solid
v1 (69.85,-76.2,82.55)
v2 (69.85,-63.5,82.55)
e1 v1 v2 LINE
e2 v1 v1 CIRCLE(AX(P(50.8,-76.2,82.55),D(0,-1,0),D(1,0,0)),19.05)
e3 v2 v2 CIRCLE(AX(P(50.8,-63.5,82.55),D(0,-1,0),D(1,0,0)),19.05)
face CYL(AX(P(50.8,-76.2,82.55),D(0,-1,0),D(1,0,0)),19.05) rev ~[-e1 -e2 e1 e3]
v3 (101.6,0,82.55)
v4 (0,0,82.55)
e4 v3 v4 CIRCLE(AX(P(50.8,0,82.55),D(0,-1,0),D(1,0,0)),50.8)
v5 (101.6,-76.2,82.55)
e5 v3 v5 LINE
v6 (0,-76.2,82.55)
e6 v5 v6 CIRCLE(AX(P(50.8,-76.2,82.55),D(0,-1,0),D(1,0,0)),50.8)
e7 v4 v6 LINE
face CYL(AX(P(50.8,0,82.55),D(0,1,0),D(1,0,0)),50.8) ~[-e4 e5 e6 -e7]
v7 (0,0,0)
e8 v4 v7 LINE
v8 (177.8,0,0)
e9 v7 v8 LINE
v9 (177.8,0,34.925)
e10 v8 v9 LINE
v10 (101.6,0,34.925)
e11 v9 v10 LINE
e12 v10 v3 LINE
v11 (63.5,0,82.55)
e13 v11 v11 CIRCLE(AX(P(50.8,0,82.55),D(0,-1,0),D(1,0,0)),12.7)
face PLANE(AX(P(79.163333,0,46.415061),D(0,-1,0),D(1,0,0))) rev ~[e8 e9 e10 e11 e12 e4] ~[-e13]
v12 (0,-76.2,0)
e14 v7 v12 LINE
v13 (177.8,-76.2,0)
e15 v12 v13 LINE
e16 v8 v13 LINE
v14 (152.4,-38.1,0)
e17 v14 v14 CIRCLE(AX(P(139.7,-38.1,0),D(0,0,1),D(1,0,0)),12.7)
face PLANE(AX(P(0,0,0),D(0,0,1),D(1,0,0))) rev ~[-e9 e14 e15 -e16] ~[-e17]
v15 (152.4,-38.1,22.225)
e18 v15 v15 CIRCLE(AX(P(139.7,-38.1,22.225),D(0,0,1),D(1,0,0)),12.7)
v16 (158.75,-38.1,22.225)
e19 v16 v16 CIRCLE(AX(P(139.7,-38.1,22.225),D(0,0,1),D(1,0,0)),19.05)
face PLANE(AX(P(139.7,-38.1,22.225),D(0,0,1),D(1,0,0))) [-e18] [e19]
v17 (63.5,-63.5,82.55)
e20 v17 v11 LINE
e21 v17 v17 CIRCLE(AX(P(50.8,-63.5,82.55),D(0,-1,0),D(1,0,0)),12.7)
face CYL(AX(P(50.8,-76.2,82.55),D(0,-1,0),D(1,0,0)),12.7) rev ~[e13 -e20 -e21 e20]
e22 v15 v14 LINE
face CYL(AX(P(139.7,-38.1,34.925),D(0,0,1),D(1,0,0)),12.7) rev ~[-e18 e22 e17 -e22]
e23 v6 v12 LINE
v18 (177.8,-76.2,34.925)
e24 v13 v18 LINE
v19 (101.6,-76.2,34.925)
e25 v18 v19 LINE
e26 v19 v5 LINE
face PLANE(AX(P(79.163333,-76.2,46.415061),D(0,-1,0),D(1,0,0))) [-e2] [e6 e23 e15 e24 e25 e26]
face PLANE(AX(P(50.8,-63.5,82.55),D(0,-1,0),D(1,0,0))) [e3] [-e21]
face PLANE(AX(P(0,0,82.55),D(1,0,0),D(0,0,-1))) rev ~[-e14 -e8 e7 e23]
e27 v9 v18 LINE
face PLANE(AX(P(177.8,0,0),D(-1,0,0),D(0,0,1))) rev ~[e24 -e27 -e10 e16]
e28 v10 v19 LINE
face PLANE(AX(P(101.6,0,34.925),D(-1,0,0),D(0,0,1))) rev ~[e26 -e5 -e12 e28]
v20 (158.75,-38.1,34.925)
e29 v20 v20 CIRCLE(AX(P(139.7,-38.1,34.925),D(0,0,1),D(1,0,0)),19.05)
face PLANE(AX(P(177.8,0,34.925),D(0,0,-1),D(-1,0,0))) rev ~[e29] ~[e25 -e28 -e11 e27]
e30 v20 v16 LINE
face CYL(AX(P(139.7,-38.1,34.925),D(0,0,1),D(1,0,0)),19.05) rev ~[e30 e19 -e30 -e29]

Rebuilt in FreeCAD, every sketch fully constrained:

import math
import FreeCAD as App
import Part
import Sketcher

V = App.Vector
Q = App.Units.Quantity

doc = App.newDocument("Part")
body = doc.addObject("PartDesign::Body", "Body")

# Sketch on XZ plane
sketch1 = doc.addObject("Sketcher::SketchObject", "Sketch")
body.addObject(sketch1)
sketch1.AttachmentSupport = (doc.XZ_Plane, [""])
sketch1.MapMode = "FlatFace"
sketch1.addGeometry(Part.LineSegment(V(0, 82.55, 0), V(0, 0, 0)), False)
sketch1.addGeometry(Part.LineSegment(V(0, 0, 0), V(177.8, 0, 0)), False)
sketch1.addGeometry(Part.LineSegment(V(177.8, 0, 0), V(177.8, 34.925, 0)), False)
sketch1.addGeometry(Part.LineSegment(V(177.8, 34.925, 0), V(101.6, 34.925, 0)), False)
sketch1.addGeometry(Part.LineSegment(V(101.6, 34.925, 0), V(101.6, 82.55, 0)), False)
sketch1.addGeometry(Part.ArcOfCircle(Part.Circle(V(50.8, 82.55, 0), V(0, 0, 1), 50.8), math.radians(0), math.radians(180)), False)
sketch1.addConstraint(Sketcher.Constraint("Coincident", 0, 2, 1, 1))
sketch1.addConstraint(Sketcher.Constraint("Coincident", 1, 2, 2, 1))
sketch1.addConstraint(Sketcher.Constraint("Coincident", 2, 2, 3, 1))
sketch1.addConstraint(Sketcher.Constraint("Coincident", 3, 2, 4, 1))
sketch1.addConstraint(Sketcher.Constraint("Tangent", 4, 2, 5, 1))
sketch1.addConstraint(Sketcher.Constraint("Tangent", 5, 2, 0, 1))
sketch1.addConstraint(Sketcher.Constraint("Vertical", 0))
sketch1.addConstraint(Sketcher.Constraint("Horizontal", 1))
sketch1.addConstraint(Sketcher.Constraint("Vertical", 2))
sketch1.addConstraint(Sketcher.Constraint("Horizontal", 3))
sketch1.addConstraint(Sketcher.Constraint("Vertical", 4))
sketch1.addConstraint(Sketcher.Constraint("Coincident", 0, 2, -1, 1))
sketch1.addConstraint(Sketcher.Constraint("Radius", 5, Q("2 in")))
sketch1.addConstraint(Sketcher.Constraint("DistanceX", 1, 1, 1, 2, Q("7 in")))
sketch1.addConstraint(Sketcher.Constraint("DistanceY", 0, 2, 0, 1, Q("3.25 in")))
sketch1.addConstraint(Sketcher.Constraint("DistanceY", 2, 1, 2, 2, Q("1.375 in")))
pad1 = doc.addObject("PartDesign::Pad", "Pad")
body.addObject(pad1)
pad1.Profile = sketch1
pad1.Length = Q("3 in")

# Sketch on XZ plane
sketch2 = doc.addObject("Sketcher::SketchObject", "Sketch001")
body.addObject(sketch2)
sketch2.AttachmentSupport = (doc.XZ_Plane, [""])
sketch2.MapMode = "FlatFace"
sketch2.AttachmentOffset = App.Placement(V(0, 0, 3 * 25.4), App.Rotation())
sketch2.addGeometry(Part.Circle(V(50.8, 82.55, 0), V(0, 0, 1), 19.05), False)
sketch2.addConstraint(Sketcher.Constraint("Diameter", 0, Q("1.5 in")))
sketch2.addConstraint(Sketcher.Constraint("DistanceX", -1, 1, 0, 3, Q("2 in")))
sketch2.addConstraint(Sketcher.Constraint("DistanceY", -1, 1, 0, 3, Q("3.25 in")))
pocket1 = doc.addObject("PartDesign::Pocket", "Pocket")
body.addObject(pocket1)
pocket1.Profile = sketch2
pocket1.Length = Q("0.5 in")

# Sketch on XZ plane
sketch3 = doc.addObject("Sketcher::SketchObject", "Sketch002")
body.addObject(sketch3)
sketch3.AttachmentSupport = (doc.XZ_Plane, [""])
sketch3.MapMode = "FlatFace"
sketch3.AttachmentOffset = App.Placement(V(0, 0, 3 * 25.4), App.Rotation())
sketch3.addGeometry(Part.Circle(V(50.8, 82.55, 0), V(0, 0, 1), 12.7), False)
sketch3.addConstraint(Sketcher.Constraint("Diameter", 0, Q("1 in")))
sketch3.addConstraint(Sketcher.Constraint("DistanceX", -1, 1, 0, 3, Q("2 in")))
sketch3.addConstraint(Sketcher.Constraint("DistanceY", -1, 1, 0, 3, Q("3.25 in")))
pocket2 = doc.addObject("PartDesign::Pocket", "Pocket001")
body.addObject(pocket2)
pocket2.Profile = sketch3
pocket2.Type = "ThroughAll"

# Sketch on XY plane
sketch4 = doc.addObject("Sketcher::SketchObject", "Sketch003")
body.addObject(sketch4)
sketch4.AttachmentSupport = (doc.XY_Plane, [""])
sketch4.MapMode = "FlatFace"
sketch4.AttachmentOffset = App.Placement(V(0, 0, 1.375 * 25.4), App.Rotation())
sketch4.addGeometry(Part.Circle(V(139.7, -38.1, 0), V(0, 0, 1), 19.05), False)
sketch4.addConstraint(Sketcher.Constraint("Diameter", 0, Q("1.5 in")))
sketch4.addConstraint(Sketcher.Constraint("DistanceX", -1, 1, 0, 3, Q("5.5 in")))
sketch4.addConstraint(Sketcher.Constraint("DistanceY", 0, 3, -1, 1, Q("1.5 in")))
pocket3 = doc.addObject("PartDesign::Pocket", "Pocket002")
body.addObject(pocket3)
pocket3.Profile = sketch4
pocket3.Length = Q("0.5 in")

# Sketch on XY plane
sketch5 = doc.addObject("Sketcher::SketchObject", "Sketch004")
body.addObject(sketch5)
sketch5.AttachmentSupport = (doc.XY_Plane, [""])
sketch5.MapMode = "FlatFace"
sketch5.AttachmentOffset = App.Placement(V(0, 0, 1.375 * 25.4), App.Rotation())
sketch5.addGeometry(Part.Circle(V(139.7, -38.1, 0), V(0, 0, 1), 12.7), False)
sketch5.addConstraint(Sketcher.Constraint("Diameter", 0, Q("1 in")))
sketch5.addConstraint(Sketcher.Constraint("DistanceX", -1, 1, 0, 3, Q("5.5 in")))
sketch5.addConstraint(Sketcher.Constraint("DistanceY", 0, 3, -1, 1, Q("1.5 in")))
pocket4 = doc.addObject("PartDesign::Pocket", "Pocket003")
body.addObject(pocket4)
pocket4.Profile = sketch5
pocket4.Type = "ThroughAll"

doc.recompute()
